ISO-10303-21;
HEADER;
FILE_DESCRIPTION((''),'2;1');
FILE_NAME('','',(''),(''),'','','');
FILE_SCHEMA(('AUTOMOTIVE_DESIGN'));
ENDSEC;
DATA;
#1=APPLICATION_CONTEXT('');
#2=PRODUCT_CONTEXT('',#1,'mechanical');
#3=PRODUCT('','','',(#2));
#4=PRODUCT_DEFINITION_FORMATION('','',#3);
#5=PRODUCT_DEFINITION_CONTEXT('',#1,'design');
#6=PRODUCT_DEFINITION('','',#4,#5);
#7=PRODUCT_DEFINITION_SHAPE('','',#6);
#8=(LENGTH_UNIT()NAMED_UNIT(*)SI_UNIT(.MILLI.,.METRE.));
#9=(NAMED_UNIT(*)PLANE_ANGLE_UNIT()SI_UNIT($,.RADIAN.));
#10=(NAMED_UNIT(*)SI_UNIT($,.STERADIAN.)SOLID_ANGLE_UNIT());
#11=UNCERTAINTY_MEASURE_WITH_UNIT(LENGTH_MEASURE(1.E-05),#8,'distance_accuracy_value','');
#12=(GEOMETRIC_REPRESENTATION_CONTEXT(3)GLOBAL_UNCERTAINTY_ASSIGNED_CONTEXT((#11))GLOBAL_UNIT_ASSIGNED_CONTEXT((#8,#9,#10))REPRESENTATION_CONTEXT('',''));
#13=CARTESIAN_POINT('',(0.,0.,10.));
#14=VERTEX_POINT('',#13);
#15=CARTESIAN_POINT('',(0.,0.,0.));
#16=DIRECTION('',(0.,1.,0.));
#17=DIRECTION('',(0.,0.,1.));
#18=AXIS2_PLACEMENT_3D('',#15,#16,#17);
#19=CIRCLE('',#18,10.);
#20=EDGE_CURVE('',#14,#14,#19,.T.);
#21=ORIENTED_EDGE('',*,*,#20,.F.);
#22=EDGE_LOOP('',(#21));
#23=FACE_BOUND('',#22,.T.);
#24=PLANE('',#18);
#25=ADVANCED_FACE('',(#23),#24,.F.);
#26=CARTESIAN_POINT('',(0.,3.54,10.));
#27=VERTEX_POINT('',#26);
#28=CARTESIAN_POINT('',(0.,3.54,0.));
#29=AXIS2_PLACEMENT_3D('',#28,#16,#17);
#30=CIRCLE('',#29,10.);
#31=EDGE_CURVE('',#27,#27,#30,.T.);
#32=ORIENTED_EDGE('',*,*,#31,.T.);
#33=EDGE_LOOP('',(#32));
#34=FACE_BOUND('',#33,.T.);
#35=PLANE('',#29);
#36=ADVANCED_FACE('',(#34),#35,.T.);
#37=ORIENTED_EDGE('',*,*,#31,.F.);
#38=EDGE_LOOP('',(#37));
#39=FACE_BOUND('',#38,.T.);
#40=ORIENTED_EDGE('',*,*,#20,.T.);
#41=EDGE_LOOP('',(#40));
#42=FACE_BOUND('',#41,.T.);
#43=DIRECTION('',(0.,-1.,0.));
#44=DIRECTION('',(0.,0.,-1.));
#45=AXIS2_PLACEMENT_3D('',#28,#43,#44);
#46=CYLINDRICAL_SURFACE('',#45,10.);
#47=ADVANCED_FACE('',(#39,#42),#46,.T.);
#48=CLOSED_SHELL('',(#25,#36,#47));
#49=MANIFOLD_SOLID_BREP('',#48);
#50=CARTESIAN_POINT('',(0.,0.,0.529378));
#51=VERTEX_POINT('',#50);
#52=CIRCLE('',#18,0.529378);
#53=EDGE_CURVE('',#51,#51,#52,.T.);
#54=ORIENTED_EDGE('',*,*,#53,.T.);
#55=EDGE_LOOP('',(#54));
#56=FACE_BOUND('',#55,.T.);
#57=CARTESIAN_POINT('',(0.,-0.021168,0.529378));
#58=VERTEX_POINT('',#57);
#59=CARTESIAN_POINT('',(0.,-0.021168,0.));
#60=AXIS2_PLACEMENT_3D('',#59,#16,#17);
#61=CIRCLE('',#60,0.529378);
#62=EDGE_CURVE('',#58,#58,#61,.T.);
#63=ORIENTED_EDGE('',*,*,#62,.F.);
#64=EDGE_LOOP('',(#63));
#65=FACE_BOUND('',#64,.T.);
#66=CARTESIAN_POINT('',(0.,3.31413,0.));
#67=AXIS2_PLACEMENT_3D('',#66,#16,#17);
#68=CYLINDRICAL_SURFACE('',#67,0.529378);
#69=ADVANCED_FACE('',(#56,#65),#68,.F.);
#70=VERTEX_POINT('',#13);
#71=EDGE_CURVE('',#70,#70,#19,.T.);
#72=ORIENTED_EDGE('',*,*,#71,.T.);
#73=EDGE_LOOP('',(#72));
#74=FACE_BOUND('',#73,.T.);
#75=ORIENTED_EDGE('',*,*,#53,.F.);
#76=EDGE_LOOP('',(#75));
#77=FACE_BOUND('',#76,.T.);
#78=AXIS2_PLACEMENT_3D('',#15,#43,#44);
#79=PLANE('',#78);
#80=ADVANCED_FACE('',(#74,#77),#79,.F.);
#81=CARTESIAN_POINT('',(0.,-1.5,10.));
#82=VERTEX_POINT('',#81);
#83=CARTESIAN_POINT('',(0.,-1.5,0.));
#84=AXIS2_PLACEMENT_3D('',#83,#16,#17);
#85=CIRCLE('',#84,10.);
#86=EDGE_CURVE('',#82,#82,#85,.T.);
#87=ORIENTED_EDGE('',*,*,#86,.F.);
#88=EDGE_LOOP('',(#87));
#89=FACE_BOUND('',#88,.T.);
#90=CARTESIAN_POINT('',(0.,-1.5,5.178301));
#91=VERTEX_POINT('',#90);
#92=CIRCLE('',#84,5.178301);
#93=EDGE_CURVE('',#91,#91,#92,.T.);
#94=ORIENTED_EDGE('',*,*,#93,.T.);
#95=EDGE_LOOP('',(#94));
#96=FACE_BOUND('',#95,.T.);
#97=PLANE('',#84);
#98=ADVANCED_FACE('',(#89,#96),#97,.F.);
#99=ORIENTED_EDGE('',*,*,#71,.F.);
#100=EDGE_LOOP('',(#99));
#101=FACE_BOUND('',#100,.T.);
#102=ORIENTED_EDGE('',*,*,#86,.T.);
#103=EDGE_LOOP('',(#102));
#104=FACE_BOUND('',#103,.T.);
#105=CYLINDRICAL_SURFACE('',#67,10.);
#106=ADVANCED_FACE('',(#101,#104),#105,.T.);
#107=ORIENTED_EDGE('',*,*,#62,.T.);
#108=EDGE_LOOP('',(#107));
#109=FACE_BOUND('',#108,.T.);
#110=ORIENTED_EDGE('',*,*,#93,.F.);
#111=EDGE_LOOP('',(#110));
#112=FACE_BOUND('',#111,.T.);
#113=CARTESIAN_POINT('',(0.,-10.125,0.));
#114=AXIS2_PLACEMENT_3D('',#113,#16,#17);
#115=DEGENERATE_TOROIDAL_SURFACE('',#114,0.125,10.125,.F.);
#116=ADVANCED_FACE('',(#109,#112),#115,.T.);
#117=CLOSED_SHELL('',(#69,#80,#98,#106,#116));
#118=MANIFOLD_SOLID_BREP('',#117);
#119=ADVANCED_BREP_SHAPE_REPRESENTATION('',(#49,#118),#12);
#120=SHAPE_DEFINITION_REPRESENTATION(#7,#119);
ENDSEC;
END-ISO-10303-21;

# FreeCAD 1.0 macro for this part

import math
import FreeCAD as App
import Part
import Sketcher
from FreeCAD import Vector
Q = App.Units.Quantity

doc = App.newDocument("Part")
body = doc.addObject("PartDesign::Body", "Body")

sketch1 = body.newObject("Sketcher::SketchObject", "Sketch")
sketch1.AttachmentSupport = (doc.getObject("XZ_Plane"), [""])
sketch1.MapMode = "FlatFace"
sketch1.addGeometry(Part.Circle(Vector(0, 0, 0), Vector(0, 0, 1), 10), False)
sketch1.addConstraint([
    Sketcher.Constraint("Coincident", 0, 3, -1, 1),
    Sketcher.Constraint("Diameter", 0, Q("20 mm")),
])
pad1 = body.newObject("PartDesign::Pad", "Pad")
pad1.Profile = sketch1
pad1.Length = 3.54
pad1.Reversed = True
body2 = doc.addObject("PartDesign::Body", "Body001")

sketch2 = body2.newObject("Sketcher::SketchObject", "Sketch001")
sketch2.AttachmentSupport = (doc.getObject("XY_Plane001"), [""])
sketch2.MapMode = "FlatFace"
sketch2.addGeometry([
    Part.ArcOfCircle(Part.Circle(Vector(-0.125, -10.125, 0), Vector(0, 0, 1), 10.125), math.radians(58), math.radians(86)),
    Part.LineSegment(Vector(5.178, -1.5, 0), Vector(10, -1.5, 0)),
    Part.LineSegment(Vector(10, -1.5, 0), Vector(10, 0, 0)),
    Part.LineSegment(Vector(10, 0, 0), Vector(0.529, 0, 0)),
    Part.LineSegment(Vector(0.529, 0, 0), Vector(0.529, -0.021, 0)),
], False)
sketch2.addConstraint([
    Sketcher.Constraint("Coincident", 0, 1, 1, 1),
    Sketcher.Constraint("Coincident", 1, 2, 2, 1),
    Sketcher.Constraint("Coincident", 2, 2, 3, 1),
    Sketcher.Constraint("Coincident", 3, 2, 4, 1),
    Sketcher.Constraint("Coincident", 4, 2, 0, 2),
    Sketcher.Constraint("Horizontal", 1),
    Sketcher.Constraint("Vertical", 2),
    Sketcher.Constraint("Horizontal", 3),
    Sketcher.Constraint("Vertical", 4),
    Sketcher.Constraint("PointOnObject", 2, 2, -1),
    Sketcher.Constraint("DistanceY", 2, 1, 2, 2, Q("1.5 mm")),
    Sketcher.Constraint("DistanceX", -1, 1, 1, 2, Q("10 mm")),
    Sketcher.Constraint("Radius", 0, Q("10.125 mm")),
    Sketcher.Constraint("DistanceX", 1, 1, 1, 2, Q("4.821699 mm")),
    Sketcher.Constraint("DistanceX", 0, 3, -1, 1, Q("0.125 mm")),
    Sketcher.Constraint("DistanceX", 3, 2, 3, 1, Q("9.470622 mm")),
])
revolution = body2.newObject("PartDesign::Revolution", "Revolution")
revolution.Profile = sketch2
revolution.ReferenceAxis = (sketch2, ["V_Axis"])
revolution.Angle = 360

doc.recompute()
